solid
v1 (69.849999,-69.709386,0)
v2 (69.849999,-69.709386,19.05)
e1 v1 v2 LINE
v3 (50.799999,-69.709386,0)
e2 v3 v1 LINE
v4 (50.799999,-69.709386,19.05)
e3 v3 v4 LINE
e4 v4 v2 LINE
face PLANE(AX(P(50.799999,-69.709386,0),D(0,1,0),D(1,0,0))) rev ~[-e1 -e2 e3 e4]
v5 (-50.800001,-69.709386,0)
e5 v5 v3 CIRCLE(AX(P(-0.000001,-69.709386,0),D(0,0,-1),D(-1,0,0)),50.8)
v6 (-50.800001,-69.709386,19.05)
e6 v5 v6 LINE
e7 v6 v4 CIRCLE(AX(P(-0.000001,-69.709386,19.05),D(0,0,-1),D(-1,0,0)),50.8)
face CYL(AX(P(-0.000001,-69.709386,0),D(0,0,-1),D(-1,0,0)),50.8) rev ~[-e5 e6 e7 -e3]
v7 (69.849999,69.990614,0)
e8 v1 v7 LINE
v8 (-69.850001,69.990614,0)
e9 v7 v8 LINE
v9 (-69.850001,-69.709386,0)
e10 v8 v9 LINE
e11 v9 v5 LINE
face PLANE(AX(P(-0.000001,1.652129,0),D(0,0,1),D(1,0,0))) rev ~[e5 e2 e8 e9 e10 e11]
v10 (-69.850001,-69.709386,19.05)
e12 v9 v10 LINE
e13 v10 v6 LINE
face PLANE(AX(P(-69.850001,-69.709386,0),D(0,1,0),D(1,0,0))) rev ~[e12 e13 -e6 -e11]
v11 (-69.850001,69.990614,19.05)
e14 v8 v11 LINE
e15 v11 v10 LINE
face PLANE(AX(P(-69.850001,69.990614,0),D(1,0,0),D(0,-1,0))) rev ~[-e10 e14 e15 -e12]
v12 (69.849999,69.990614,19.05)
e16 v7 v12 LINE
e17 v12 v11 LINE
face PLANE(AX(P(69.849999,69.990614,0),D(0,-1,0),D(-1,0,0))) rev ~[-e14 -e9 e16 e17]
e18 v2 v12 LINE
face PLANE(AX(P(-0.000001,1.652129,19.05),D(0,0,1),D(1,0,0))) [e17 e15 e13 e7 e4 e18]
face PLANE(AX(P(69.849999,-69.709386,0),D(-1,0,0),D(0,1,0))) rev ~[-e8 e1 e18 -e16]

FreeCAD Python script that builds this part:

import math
import FreeCAD as App
import Part
import Sketcher

V = App.Vector
Q = App.Units.Quantity

doc = App.newDocument("Part")
params = doc.addObject("Spreadsheet::Sheet", "Params")
for row, (alias, value) in enumerate([
    ("sketch1_radius", "2 in"),
    ("sketch1_width", "5.5 in"),
    ("pad1_length", "0.75 in"),
], start=1):
    params.set(f"A{row}", alias)
    params.set(f"B{row}", "=" + value)
    params.setAlias(f"B{row}", alias)

body = doc.addObject("PartDesign::Body", "Body")

# Sketch on XY plane
sketch1 = body.newObject("Sketcher::SketchObject", "Sketch")
sketch1.AttachmentSupport = (doc.getObject("XY_Plane"), [""])
sketch1.MapMode = "FlatFace"
sketch1.addGeometry([
    Part.LineSegment(V(70, -70, 0), V(70, 70, 0)),  # 0
    Part.LineSegment(V(70, 70, 0), V(-70, 70, 0)),  # 1
    Part.LineSegment(V(-70, 70, 0), V(-70, -70, 0)),  # 2
    Part.LineSegment(V(-70, -70, 0), V(-51, -70, 0)),  # 3
    Part.ArcOfCircle(Part.Circle(V(0, -70, 0), V(0, 0, 1), 51), math.radians(0), math.radians(180)),  # 4
    Part.LineSegment(V(51, -70, 0), V(70, -70, 0)),  # 5
], False)
sketch1.addConstraint([
    Sketcher.Constraint("Coincident", 0, 2, 1, 1),
    Sketcher.Constraint("Coincident", 1, 2, 2, 1),
    Sketcher.Constraint("Coincident", 2, 2, 3, 1),
    Sketcher.Constraint("Coincident", 3, 2, 4, 2),
    Sketcher.Constraint("Coincident", 4, 1, 5, 1),
    Sketcher.Constraint("Coincident", 5, 2, 0, 1),
    Sketcher.Constraint("Vertical", 0),
    Sketcher.Constraint("Horizontal", 1),
    Sketcher.Constraint("Vertical", 2),
    Sketcher.Constraint("Horizontal", 3),
    Sketcher.Constraint("Horizontal", 5),
    Sketcher.Constraint("Symmetric", 3, 2, 4, 1, -2),
    Sketcher.Constraint("Horizontal", 4, 3, 2, 2),
    Sketcher.Constraint("Equal", 3, 5),
    Sketcher.Constraint("Equal", 1, 0),
    Sketcher.Constraint("Radius", 4, Q("2 in")),
    Sketcher.Constraint("DistanceX", 1, 2, 1, 1, Q("5.5 in")),
    Sketcher.Constraint("DistanceY", 4, 3, -1, 1, Q("69.709386 mm")),
])
sketch1.setExpression("Constraints[15]", "Params.sketch1_radius")
sketch1.setExpression("Constraints[16]", "Params.sketch1_width")
pad1 = body.newObject("PartDesign::Pad", "Pad")
pad1.Profile = sketch1
pad1.setExpression("Length", "Params.pad1_length")

doc.recompute()
